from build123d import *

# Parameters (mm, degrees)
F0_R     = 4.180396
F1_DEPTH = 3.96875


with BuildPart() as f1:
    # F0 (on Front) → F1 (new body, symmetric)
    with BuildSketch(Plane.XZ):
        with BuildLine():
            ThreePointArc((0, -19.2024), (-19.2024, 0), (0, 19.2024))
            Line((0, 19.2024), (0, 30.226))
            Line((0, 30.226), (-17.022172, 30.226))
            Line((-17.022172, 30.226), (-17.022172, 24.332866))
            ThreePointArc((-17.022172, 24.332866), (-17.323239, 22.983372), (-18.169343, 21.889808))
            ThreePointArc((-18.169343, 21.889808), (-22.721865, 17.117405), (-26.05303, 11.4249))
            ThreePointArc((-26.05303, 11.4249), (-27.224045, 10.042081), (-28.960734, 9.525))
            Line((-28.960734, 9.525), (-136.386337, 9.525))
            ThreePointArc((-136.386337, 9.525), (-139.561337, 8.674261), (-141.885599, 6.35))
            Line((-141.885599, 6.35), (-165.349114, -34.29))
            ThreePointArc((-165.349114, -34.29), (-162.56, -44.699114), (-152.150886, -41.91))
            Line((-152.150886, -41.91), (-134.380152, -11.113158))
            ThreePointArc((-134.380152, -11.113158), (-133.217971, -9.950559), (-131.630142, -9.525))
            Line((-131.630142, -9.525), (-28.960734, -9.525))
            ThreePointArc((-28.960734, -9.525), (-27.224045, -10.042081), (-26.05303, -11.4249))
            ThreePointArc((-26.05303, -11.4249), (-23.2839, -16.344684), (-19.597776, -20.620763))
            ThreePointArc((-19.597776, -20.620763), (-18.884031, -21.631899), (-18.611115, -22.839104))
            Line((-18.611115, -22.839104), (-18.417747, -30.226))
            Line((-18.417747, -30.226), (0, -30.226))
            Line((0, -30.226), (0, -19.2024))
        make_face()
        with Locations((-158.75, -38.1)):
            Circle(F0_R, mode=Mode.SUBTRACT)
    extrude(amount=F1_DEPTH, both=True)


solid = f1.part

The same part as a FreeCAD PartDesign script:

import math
import FreeCAD as App
import Part
import Sketcher
from FreeCAD import Vector
Q = App.Units.Quantity

doc = App.newDocument("Part")
body = doc.addObject("PartDesign::Body", "Body")

sketch1 = body.newObject("Sketcher::SketchObject", "Sketch")
sketch1.AttachmentSupport = (doc.getObject("XZ_Plane"), [""])
sketch1.MapMode = "FlatFace"
sketch1.addGeometry([
    Part.ArcOfCircle(Part.Circle(Vector(0, 0, 0), Vector(0, 0, 1), 19.2), math.radians(90), math.radians(270)),
    Part.LineSegment(Vector(0, 19.2, 0), Vector(0, 30.2, 0)),
    Part.LineSegment(Vector(0, 30.2, 0), Vector(-17, 30.2, 0)),
    Part.LineSegment(Vector(-17, 30.2, 0), Vector(-17, 24.3, 0)),
    Part.ArcOfCircle(Part.Circle(Vector(-20.2, 24.3, 0), Vector(0, 0, 1), 3.2), math.radians(-50), math.radians(0)),
    Part.ArcOfCircle(Part.Circle(Vector(0, 0, 0), Vector(0, 0, 1), 28.4), math.radians(130), math.radians(156)),
    Part.ArcOfCircle(Part.Circle(Vector(-29, 12.7, 0), Vector(0, 0, 1), 3.2), math.radians(-90), math.radians(-24)),
    Part.LineSegment(Vector(-29, 9.5, 0), Vector(-136.4, 9.5, 0)),
    Part.ArcOfCircle(Part.Circle(Vector(-136.4, 3.2, 0), Vector(0, 0, 1), 6.4), math.radians(90), math.radians(150)),
    Part.LineSegment(Vector(-141.9, 6.3, 0), Vector(-165.3, -34.3, 0)),
    Part.ArcOfCircle(Part.Circle(Vector(-158.8, -38.1, 0), Vector(0, 0, 1), 7.6), math.radians(150), math.radians(330)),
    Part.LineSegment(Vector(-152.2, -41.9, 0), Vector(-134.4, -11.1, 0)),
    Part.ArcOfCircle(Part.Circle(Vector(-131.6, -12.7, 0), Vector(0, 0, 1), 3.2), math.radians(90), math.radians(150)),
    Part.LineSegment(Vector(-131.6, -9.5, 0), Vector(-29, -9.5, 0)),
    Part.ArcOfCircle(Part.Circle(Vector(-29, -12.7, 0), Vector(0, 0, 1), 3.2), math.radians(24), math.radians(90)),
    Part.ArcOfCircle(Part.Circle(Vector(0, 0, 0), Vector(0, 0, 1), 28.4), math.radians(-156), math.radians(-134)),
    Part.ArcOfCircle(Part.Circle(Vector(-21.8, -22.9, 0), Vector(0, 0, 1), 3.2), math.radians(1), math.radians(46)),
    Part.LineSegment(Vector(-18.6, -22.8, 0), Vector(-18.4, -30.2, 0)),
    Part.LineSegment(Vector(-18.4, -30.2, 0), Vector(0, -30.2, 0)),
    Part.LineSegment(Vector(0, -30.2, 0), Vector(0, -19.2, 0)),
    Part.Circle(Vector(-158.8, -38.1, 0), Vector(0, 0, 1), 4.2),
], False)
sketch1.addConstraint([
    Sketcher.Constraint("Coincident", 0, 1, 1, 1),
    Sketcher.Constraint("Coincident", 1, 2, 2, 1),
    Sketcher.Constraint("Coincident", 2, 2, 3, 1),
    Sketcher.Constraint("Tangent", 3, 2, 4, 2),
    Sketcher.Constraint("Tangent", 4, 1, 5, 1),
    Sketcher.Constraint("Tangent", 5, 2, 6, 2),
    Sketcher.Constraint("Tangent", 6, 1, 7, 1),
    Sketcher.Constraint("Tangent", 7, 2, 8, 1),
    Sketcher.Constraint("Tangent", 8, 2, 9, 1),
    Sketcher.Constraint("Tangent", 9, 2, 10, 1),
    Sketcher.Constraint("Coincident", 10, 2, 11, 1),
    Sketcher.Constraint("Tangent", 11, 2, 12, 2),
    Sketcher.Constraint("Tangent", 12, 1, 13, 1),
    Sketcher.Constraint("Tangent", 13, 2, 14, 2),
    Sketcher.Constraint("Tangent", 14, 1, 15, 1),
    Sketcher.Constraint("Tangent", 15, 2, 16, 2),
    Sketcher.Constraint("Tangent", 16, 1, 17, 1),
    Sketcher.Constraint("Coincident", 17, 2, 18, 1),
    Sketcher.Constraint("Coincident", 18, 2, 19, 1),
    Sketcher.Constraint("Coincident", 19, 2, 0, 2),
    Sketcher.Constraint("Vertical", 1),
    Sketcher.Constraint("Horizontal", 2),
    Sketcher.Constraint("Vertical", 3),
    Sketcher.Constraint("Horizontal", 7),
    Sketcher.Constraint("Horizontal", 13),
    Sketcher.Constraint("Horizontal", 18),
    Sketcher.Constraint("Vertical", 19),
    Sketcher.Constraint("Coincident", 0, 3, -1, 1),
    Sketcher.Constraint("Coincident", 5, 3, -1, 1),
    Sketcher.Constraint("Coincident", 15, 3, -1, 1),
    Sketcher.Constraint("Coincident", 20, 3, 10, 3),
    Sketcher.Constraint("Equal", 4, 12),
    Sketcher.Constraint("Equal", 6, 14),
    Sketcher.Constraint("Equal", 12, 16),
    Sketcher.Constraint("Symmetric", 1, 2, 18, 2, -1, 1),
    Sketcher.Constraint("Symmetric", 6, 3, 14, 3, -1),
    Sketcher.Constraint("PointOnObject", 0, 1, -2),
    Sketcher.Constraint("Radius", 10, Q("0.3 in")),
    Sketcher.Constraint("Radius", 8, Q("0.2500002 in")),
    Sketcher.Constraint("Angle", 9, Q("-120 deg")),
    Sketcher.Constraint("Radius", 0, Q("0.756 in")),
    Sketcher.Constraint("Radius", 4, Q("0.1249999 in")),
    Sketcher.Constraint("Radius", 6, Q("0.125 in")),
    Sketcher.Constraint("DistanceY", 10, 3, 6, 3, Q("2 in")),
    Sketcher.Constraint("DistanceY", 10, 3, 12, 3, Q("1.0000001 in")),
    Sketcher.Constraint("DistanceY", 10, 2, 9, 2, Q("0.3 in")),
    Sketcher.Constraint("DistanceY", 1, 1, 1, 2, Q("0.434 in")),
    Sketcher.Constraint("DistanceX", 10, 3, -1, 1, Q("6.25 in")),
    Sketcher.Constraint("Radius", 5, 28.448008),
    Sketcher.Constraint("Diameter", 20, 8.360792),
    Sketcher.Constraint("DistanceX", 13, 1, 13, 2, 102.669408),
    Sketcher.Constraint("DistanceX", 2, 2, 2, 1, 17.022172),
    Sketcher.Constraint("DistanceX", 18, 1, 18, 2, 18.417747),
    Sketcher.Constraint("DistanceX", 14, 3, 16, 3, 7.17571),
])
pad1 = body.newObject("PartDesign::Pad", "Pad")
pad1.Profile = sketch1
pad1.Length = Q("0.3125 in")
pad1.Midplane = True

doc.recompute()
